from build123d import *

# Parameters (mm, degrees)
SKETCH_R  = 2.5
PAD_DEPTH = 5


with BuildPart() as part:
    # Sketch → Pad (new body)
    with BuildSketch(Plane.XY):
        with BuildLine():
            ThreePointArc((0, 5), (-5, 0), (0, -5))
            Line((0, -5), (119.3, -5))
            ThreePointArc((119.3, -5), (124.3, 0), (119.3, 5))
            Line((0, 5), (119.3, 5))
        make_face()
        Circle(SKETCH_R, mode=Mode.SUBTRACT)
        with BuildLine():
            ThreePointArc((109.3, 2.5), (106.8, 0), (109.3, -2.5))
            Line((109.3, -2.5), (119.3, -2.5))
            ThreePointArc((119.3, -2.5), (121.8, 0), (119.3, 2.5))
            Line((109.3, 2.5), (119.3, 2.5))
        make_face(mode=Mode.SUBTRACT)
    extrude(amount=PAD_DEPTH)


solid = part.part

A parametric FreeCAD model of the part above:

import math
import FreeCAD as App
import Part
import Sketcher

V = App.Vector

doc = App.newDocument("Part")
body = doc.addObject("PartDesign::Body", "Body")

# Sketch on XY plane
sketch1 = body.newObject("Sketcher::SketchObject", "Sketch")
sketch1.AttachmentSupport = (doc.getObject("XY_Plane"), [""])
sketch1.MapMode = "FlatFace"
sketch1.addGeometry(Part.ArcOfCircle(Part.Circle(V(0, 0, 0), V(0, 0, 1), 5), math.radians(90), math.radians(270)), False)
sketch1.addGeometry(Part.LineSegment(V(0, -5, 0), V(119.3, -5, 0)), False)
sketch1.addGeometry(Part.ArcOfCircle(Part.Circle(V(119.3, 0, 0), V(0, 0, 1), 5), math.radians(-90), math.radians(90)), False)
sketch1.addGeometry(Part.LineSegment(V(119.3, 5, 0), V(0, 5, 0)), False)
sketch1.addGeometry(Part.Circle(V(0, 0, 0), V(0, 0, 1), 2.5), False)
sketch1.addGeometry(Part.ArcOfCircle(Part.Circle(V(109.3, 0, 0), V(0, 0, 1), 2.5), math.radians(90), math.radians(270)), False)
sketch1.addGeometry(Part.LineSegment(V(109.3, 2.5, 0), V(119.3, 2.5, 0)), False)
sketch1.addGeometry(Part.ArcOfCircle(Part.Circle(V(119.3, 0, 0), V(0, 0, 1), 2.5), math.radians(-90), math.radians(90)), False)
sketch1.addGeometry(Part.LineSegment(V(119.3, -2.5, 0), V(109.3, -2.5, 0)), False)
sketch1.addConstraint(Sketcher.Constraint("Tangent", 0, 2, 1, 1))
sketch1.addConstraint(Sketcher.Constraint("Tangent", 1, 2, 2, 1))
sketch1.addConstraint(Sketcher.Constraint("Tangent", 2, 2, 3, 1))
sketch1.addConstraint(Sketcher.Constraint("Tangent", 3, 2, 0, 1))
sketch1.addConstraint(Sketcher.Constraint("Tangent", 5, 1, 6, 1))
sketch1.addConstraint(Sketcher.Constraint("Tangent", 6, 2, 7, 2))
sketch1.addConstraint(Sketcher.Constraint("Tangent", 7, 1, 8, 1))
sketch1.addConstraint(Sketcher.Constraint("Tangent", 8, 2, 5, 2))
sketch1.addConstraint(Sketcher.Constraint("Horizontal", 1))
sketch1.addConstraint(Sketcher.Constraint("Horizontal", 3))
sketch1.addConstraint(Sketcher.Constraint("Horizontal", 6))
sketch1.addConstraint(Sketcher.Constraint("Horizontal", 8))
sketch1.addConstraint(Sketcher.Constraint("Coincident", 0, 3, -1, 1))
sketch1.addConstraint(Sketcher.Constraint("Coincident", 4, 3, -1, 1))
sketch1.addConstraint(Sketcher.Constraint("Coincident", 7, 3, 2, 3))
sketch1.addConstraint(Sketcher.Constraint("Equal", 4, 5))
sketch1.addConstraint(Sketcher.Constraint("Diameter", 4, 5.0))
sketch1.addConstraint(Sketcher.Constraint("Radius", 0, 5.0))
sketch1.addConstraint(Sketcher.Constraint("DistanceX", 6, 1, 6, 2, 10.0))
sketch1.addConstraint(Sketcher.Constraint("DistanceX", 1, 1, 1, 2, 119.3))
pad1 = body.newObject("PartDesign::Pad", "Pad")
pad1.Profile = sketch1
pad1.Length = 5

doc.recompute()
